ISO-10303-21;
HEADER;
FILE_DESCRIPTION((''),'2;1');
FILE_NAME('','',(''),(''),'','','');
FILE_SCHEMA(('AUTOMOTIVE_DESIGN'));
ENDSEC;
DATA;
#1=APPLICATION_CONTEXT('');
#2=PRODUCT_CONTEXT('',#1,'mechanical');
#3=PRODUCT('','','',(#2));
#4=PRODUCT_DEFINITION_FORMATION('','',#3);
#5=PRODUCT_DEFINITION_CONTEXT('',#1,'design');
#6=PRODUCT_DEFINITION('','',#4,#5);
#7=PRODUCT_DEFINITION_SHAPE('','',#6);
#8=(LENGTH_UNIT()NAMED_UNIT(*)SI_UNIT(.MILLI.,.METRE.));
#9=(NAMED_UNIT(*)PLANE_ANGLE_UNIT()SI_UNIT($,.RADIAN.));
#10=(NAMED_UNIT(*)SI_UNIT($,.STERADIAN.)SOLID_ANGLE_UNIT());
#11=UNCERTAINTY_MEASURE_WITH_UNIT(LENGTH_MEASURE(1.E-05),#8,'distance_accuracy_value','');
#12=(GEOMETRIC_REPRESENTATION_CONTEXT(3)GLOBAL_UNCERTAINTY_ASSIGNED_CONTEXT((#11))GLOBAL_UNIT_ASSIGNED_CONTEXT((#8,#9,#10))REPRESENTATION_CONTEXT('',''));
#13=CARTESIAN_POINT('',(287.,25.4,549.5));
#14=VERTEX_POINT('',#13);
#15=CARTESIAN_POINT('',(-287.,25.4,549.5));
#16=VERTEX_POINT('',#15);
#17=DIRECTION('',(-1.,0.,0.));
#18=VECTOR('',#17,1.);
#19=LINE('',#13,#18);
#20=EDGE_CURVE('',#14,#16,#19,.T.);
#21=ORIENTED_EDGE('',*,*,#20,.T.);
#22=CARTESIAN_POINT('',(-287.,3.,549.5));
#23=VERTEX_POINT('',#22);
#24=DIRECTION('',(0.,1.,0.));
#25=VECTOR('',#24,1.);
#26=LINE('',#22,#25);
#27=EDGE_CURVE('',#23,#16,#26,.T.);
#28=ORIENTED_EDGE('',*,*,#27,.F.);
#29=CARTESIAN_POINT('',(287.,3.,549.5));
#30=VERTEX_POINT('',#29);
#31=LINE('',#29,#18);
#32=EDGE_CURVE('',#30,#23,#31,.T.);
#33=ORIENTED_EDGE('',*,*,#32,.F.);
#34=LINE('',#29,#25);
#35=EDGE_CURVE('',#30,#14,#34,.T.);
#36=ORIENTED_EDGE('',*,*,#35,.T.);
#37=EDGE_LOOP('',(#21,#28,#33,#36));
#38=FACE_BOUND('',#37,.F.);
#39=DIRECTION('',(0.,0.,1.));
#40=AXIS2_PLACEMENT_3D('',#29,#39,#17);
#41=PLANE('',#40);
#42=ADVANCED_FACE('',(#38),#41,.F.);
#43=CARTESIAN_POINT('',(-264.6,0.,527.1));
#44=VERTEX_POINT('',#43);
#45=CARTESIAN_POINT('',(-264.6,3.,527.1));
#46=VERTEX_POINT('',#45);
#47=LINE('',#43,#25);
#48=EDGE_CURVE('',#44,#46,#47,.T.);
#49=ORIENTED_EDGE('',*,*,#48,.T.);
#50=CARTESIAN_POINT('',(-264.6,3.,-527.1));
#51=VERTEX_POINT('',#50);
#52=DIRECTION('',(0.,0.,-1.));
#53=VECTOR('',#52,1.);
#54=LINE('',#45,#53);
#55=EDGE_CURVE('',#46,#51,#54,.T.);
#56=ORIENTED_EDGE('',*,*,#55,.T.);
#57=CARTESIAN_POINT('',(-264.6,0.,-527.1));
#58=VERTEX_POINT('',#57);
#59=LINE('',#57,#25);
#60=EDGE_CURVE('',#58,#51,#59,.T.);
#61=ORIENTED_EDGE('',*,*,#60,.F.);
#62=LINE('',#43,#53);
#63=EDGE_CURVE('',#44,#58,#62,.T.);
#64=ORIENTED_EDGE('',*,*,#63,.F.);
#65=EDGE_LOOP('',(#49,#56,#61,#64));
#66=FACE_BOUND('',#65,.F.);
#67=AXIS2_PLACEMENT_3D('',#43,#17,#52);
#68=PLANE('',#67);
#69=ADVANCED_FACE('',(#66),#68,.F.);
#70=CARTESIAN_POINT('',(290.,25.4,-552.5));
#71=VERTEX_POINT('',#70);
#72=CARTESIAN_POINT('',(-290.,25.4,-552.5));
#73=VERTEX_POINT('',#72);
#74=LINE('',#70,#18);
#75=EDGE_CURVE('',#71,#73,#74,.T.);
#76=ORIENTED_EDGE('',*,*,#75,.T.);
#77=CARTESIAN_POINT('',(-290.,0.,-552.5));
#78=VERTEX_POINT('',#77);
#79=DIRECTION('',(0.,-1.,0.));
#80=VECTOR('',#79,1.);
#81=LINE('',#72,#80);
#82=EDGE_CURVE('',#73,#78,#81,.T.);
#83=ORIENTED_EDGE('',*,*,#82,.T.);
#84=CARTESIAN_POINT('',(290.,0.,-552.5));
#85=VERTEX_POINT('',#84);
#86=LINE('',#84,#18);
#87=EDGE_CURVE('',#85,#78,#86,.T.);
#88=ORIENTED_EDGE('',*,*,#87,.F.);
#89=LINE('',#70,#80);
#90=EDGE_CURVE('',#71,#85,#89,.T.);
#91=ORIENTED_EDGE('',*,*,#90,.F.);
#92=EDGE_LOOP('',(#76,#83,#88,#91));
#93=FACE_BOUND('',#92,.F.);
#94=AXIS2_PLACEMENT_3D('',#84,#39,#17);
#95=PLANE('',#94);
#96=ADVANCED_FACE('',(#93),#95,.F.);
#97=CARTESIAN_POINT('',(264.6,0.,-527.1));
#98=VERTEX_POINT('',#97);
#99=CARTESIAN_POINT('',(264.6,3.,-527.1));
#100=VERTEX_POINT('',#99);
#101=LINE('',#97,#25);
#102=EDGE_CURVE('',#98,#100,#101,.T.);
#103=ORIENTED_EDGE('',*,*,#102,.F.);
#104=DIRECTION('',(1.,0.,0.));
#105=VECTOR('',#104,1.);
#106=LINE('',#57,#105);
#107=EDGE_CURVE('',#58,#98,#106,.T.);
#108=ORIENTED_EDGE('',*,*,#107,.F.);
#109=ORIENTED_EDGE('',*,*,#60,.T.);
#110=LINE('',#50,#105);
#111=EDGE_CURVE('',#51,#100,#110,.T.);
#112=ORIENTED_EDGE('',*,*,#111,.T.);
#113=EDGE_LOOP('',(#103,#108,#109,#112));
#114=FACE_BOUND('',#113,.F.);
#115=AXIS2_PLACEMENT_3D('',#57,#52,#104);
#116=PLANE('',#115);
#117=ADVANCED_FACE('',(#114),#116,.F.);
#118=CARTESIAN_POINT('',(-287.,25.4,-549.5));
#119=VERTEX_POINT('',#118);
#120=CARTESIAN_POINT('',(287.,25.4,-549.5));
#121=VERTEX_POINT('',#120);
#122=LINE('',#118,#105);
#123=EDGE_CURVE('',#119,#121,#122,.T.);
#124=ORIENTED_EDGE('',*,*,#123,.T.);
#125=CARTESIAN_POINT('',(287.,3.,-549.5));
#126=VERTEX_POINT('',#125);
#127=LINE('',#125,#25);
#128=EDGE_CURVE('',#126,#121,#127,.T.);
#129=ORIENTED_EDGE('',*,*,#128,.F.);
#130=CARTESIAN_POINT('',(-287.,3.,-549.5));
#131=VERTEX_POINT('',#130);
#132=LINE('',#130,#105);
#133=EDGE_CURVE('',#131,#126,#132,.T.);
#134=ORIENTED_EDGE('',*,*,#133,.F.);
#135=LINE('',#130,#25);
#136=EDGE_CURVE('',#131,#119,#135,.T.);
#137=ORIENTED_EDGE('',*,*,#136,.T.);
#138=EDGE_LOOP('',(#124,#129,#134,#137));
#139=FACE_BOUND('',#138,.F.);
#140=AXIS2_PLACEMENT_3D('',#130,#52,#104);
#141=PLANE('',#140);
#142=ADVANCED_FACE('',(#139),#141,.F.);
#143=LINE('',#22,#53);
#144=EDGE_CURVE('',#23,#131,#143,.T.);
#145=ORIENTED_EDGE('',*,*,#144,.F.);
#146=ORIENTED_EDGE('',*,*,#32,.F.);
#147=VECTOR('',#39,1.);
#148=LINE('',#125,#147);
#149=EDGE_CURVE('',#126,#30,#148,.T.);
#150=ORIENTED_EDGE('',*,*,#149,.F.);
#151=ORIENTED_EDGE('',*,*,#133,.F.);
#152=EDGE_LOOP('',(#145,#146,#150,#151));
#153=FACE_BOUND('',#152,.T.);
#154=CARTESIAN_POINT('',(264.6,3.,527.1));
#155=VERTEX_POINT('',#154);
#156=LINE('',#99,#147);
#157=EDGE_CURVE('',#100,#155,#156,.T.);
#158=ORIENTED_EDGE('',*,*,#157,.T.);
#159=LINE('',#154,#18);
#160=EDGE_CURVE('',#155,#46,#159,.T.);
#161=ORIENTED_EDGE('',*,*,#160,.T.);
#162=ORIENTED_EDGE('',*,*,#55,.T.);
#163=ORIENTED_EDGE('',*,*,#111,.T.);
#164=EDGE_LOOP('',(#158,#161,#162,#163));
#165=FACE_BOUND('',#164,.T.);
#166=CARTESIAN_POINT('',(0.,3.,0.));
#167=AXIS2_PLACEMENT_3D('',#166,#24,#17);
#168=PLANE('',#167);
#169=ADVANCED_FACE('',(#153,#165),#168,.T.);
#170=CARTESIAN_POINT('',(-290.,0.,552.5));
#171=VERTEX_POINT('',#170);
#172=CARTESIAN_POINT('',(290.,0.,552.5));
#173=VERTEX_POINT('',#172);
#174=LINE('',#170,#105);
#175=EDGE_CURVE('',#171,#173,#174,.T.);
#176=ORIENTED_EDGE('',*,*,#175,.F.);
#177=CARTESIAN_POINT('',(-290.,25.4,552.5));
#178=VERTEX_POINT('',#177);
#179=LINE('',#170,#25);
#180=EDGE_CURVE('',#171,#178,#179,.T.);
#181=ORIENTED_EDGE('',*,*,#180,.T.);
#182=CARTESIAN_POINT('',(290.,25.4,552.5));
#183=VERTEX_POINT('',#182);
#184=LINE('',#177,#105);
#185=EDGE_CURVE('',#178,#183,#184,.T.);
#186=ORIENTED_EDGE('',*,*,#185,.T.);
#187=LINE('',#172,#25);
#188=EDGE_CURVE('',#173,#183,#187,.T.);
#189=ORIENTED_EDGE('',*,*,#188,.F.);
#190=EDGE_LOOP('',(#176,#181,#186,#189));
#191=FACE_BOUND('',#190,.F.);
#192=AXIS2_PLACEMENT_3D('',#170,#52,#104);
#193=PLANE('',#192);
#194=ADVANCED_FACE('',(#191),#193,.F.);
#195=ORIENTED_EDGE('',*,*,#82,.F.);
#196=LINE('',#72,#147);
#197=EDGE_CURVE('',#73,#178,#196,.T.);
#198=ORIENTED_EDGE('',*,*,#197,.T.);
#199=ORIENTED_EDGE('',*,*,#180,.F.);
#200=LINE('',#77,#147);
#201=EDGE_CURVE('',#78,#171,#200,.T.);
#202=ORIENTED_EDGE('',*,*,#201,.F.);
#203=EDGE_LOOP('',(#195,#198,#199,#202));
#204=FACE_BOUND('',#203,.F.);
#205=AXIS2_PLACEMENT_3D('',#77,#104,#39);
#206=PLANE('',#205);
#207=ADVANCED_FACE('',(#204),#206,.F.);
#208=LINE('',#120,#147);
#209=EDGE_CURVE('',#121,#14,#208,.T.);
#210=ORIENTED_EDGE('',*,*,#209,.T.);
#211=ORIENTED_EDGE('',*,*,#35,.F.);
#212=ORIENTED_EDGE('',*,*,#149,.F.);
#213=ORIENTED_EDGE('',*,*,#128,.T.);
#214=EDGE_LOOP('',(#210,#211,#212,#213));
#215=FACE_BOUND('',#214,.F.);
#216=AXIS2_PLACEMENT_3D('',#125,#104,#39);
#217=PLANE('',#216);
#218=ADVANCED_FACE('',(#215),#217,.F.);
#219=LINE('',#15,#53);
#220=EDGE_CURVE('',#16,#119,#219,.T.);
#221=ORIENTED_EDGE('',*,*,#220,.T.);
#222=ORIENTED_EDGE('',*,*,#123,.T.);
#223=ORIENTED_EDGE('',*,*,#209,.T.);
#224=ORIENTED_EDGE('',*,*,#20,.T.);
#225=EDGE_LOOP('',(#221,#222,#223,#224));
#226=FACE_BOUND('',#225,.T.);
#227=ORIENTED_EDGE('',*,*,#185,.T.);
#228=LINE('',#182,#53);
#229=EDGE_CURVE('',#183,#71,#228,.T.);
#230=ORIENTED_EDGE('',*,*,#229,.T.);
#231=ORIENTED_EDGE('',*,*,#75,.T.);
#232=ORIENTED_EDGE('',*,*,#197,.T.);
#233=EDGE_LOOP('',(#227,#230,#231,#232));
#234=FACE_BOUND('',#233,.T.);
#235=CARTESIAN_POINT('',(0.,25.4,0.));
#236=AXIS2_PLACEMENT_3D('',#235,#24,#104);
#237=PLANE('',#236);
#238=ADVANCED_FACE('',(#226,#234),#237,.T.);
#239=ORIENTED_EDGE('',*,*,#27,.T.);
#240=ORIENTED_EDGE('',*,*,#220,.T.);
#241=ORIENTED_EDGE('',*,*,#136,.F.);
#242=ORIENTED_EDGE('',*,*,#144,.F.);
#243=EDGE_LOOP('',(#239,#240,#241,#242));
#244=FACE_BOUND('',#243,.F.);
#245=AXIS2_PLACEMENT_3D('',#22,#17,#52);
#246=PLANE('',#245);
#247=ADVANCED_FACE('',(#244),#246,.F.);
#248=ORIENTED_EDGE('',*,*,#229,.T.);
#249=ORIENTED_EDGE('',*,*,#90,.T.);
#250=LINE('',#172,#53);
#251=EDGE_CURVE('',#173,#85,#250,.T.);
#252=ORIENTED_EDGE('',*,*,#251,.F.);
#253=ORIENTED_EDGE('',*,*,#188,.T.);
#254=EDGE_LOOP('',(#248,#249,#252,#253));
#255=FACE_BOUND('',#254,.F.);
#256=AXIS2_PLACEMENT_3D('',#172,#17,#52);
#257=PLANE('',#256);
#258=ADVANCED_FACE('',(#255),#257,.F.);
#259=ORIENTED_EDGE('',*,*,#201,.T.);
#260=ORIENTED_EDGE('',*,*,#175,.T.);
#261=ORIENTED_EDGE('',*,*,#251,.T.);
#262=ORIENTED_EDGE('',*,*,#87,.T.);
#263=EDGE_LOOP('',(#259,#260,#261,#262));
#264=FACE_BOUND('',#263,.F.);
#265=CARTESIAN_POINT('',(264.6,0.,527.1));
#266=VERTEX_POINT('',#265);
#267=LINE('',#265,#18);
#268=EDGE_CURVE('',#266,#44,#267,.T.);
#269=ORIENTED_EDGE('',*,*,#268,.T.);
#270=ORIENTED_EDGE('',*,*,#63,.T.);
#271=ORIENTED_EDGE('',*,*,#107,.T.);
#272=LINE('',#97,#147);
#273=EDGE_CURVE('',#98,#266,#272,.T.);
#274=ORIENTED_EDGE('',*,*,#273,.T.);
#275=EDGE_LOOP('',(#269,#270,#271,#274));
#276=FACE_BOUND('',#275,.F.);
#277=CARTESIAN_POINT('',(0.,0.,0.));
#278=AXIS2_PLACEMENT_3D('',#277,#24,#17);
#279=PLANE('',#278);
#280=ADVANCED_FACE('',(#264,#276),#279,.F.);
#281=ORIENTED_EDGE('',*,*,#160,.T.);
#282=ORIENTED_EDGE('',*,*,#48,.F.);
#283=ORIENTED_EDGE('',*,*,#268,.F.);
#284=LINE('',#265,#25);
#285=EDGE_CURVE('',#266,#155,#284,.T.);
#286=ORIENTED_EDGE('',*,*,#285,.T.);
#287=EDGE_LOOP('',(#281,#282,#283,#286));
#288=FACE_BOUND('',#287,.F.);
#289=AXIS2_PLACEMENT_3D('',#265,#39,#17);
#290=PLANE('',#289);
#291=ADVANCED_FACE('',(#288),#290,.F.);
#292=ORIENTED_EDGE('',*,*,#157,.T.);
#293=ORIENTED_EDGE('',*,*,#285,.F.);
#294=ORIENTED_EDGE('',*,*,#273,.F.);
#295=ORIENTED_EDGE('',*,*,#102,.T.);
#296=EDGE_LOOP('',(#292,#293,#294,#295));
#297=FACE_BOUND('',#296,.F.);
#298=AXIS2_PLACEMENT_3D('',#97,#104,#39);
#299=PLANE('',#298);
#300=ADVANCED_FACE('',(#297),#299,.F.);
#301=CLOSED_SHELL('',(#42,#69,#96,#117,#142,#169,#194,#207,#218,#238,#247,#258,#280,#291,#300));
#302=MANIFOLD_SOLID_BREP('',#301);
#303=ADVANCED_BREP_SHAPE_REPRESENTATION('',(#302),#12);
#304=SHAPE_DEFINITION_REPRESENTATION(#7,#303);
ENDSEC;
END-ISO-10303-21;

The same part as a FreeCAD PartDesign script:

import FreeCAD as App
import Part
import Sketcher
Q = App.Units.Quantity

doc = App.newDocument("Part")
body = doc.addObject("PartDesign::Body", "Body")

sketch1 = body.newObject("Sketcher::SketchObject", "Sketch")
sketch1.AttachmentSupport = (doc.getObject("XZ_Plane"), [""])
sketch1.MapMode = "FlatFace"
sketch1.addGeometry([
    Part.LineSegment(App.Vector(-290, -552.5, 0), App.Vector(-290, 552.5, 0)),
    Part.LineSegment(App.Vector(-290, 552.5, 0), App.Vector(290, 552.5, 0)),
    Part.LineSegment(App.Vector(290, 552.5, 0), App.Vector(290, -552.5, 0)),
    Part.LineSegment(App.Vector(290, -552.5, 0), App.Vector(-290, -552.5, 0)),
    Part.LineSegment(App.Vector(-264.6, 527.1, 0), App.Vector(-264.6, -527.1, 0)),
    Part.LineSegment(App.Vector(-264.6, -527.1, 0), App.Vector(264.6, -527.1, 0)),
    Part.LineSegment(App.Vector(264.6, -527.1, 0), App.Vector(264.6, 527.1, 0)),
    Part.LineSegment(App.Vector(264.6, 527.1, 0), App.Vector(-264.6, 527.1, 0)),
], False)
sketch1.addConstraint([
    Sketcher.Constraint("Coincident", 0, 2, 1, 1),
    Sketcher.Constraint("Coincident", 1, 2, 2, 1),
    Sketcher.Constraint("Coincident", 2, 2, 3, 1),
    Sketcher.Constraint("Coincident", 3, 2, 0, 1),
    Sketcher.Constraint("Coincident", 4, 2, 5, 1),
    Sketcher.Constraint("Coincident", 5, 2, 6, 1),
    Sketcher.Constraint("Coincident", 6, 2, 7, 1),
    Sketcher.Constraint("Coincident", 7, 2, 4, 1),
    Sketcher.Constraint("Vertical", 0),
    Sketcher.Constraint("Horizontal", 1),
    Sketcher.Constraint("Vertical", 2),
    Sketcher.Constraint("Horizontal", 3),
    Sketcher.Constraint("Vertical", 4),
    Sketcher.Constraint("Horizontal", 5),
    Sketcher.Constraint("Vertical", 6),
    Sketcher.Constraint("Horizontal", 7),
    Sketcher.Constraint("Symmetric", 0, 2, 2, 2, -1, 1),
    Sketcher.Constraint("Symmetric", 4, 2, 6, 2, -1, 1),
    Sketcher.Constraint("DistanceX", 1, 1, 1, 2, Q("580 mm")),
    Sketcher.Constraint("DistanceY", 0, 1, 0, 2, Q("1105 mm")),
    Sketcher.Constraint("DistanceX", 3, 2, 4, 2, Q("25.4 mm")),
    Sketcher.Constraint("DistanceY", 3, 2, 4, 2, Q("25.4 mm")),
])
pad1 = body.newObject("PartDesign::Pad", "Pad")
pad1.Profile = sketch1
pad1.Length = 3
pad1.Reversed = True

sketch2 = body.newObject("Sketcher::SketchObject", "Sketch001")
sketch2.AttachmentSupport = (doc.getObject("XZ_Plane"), [""])
sketch2.MapMode = "FlatFace"
sketch2.AttachmentOffset = App.Placement(App.Vector(0, 0, -3), App.Rotation())
sketch2.addGeometry([
    Part.LineSegment(App.Vector(290, -552.5, 0), App.Vector(-290, -552.5, 0)),
    Part.LineSegment(App.Vector(-290, -552.5, 0), App.Vector(-290, 552.5, 0)),
    Part.LineSegment(App.Vector(-290, 552.5, 0), App.Vector(290, 552.5, 0)),
    Part.LineSegment(App.Vector(290, 552.5, 0), App.Vector(290, -552.5, 0)),
    Part.LineSegment(App.Vector(-287, 549.5, 0), App.Vector(-287, -549.5, 0)),
    Part.LineSegment(App.Vector(-287, -549.5, 0), App.Vector(287, -549.5, 0)),
    Part.LineSegment(App.Vector(287, -549.5, 0), App.Vector(287, 549.5, 0)),
    Part.LineSegment(App.Vector(287, 549.5, 0), App.Vector(-287, 549.5, 0)),
], False)
sketch2.addConstraint([
    Sketcher.Constraint("Coincident", 0, 2, 1, 1),
    Sketcher.Constraint("Coincident", 1, 2, 2, 1),
    Sketcher.Constraint("Coincident", 2, 2, 3, 1),
    Sketcher.Constraint("Coincident", 3, 2, 0, 1),
    Sketcher.Constraint("Coincident", 4, 2, 5, 1),
    Sketcher.Constraint("Coincident", 5, 2, 6, 1),
    Sketcher.Constraint("Coincident", 6, 2, 7, 1),
    Sketcher.Constraint("Coincident", 7, 2, 4, 1),
    Sketcher.Constraint("Horizontal", 0),
    Sketcher.Constraint("Vertical", 1),
    Sketcher.Constraint("Horizontal", 2),
    Sketcher.Constraint("Vertical", 3),
    Sketcher.Constraint("Vertical", 4),
    Sketcher.Constraint("Horizontal", 5),
    Sketcher.Constraint("Vertical", 6),
    Sketcher.Constraint("Horizontal", 7),
    Sketcher.Constraint("Symmetric", 0, 2, 2, 2, -1, 1),
    Sketcher.Constraint("Symmetric", 4, 2, 6, 2, -1, 1),
    Sketcher.Constraint("DistanceX", 0, 2, 4, 2, Q("3 mm")),
    Sketcher.Constraint("DistanceY", 0, 2, 4, 2, Q("3 mm")),
    Sketcher.Constraint("DistanceX", 0, 2, 0, 1, Q("580 mm")),
    Sketcher.Constraint("DistanceY", 1, 1, 1, 2, Q("1105 mm")),
])
pad2 = body.newObject("PartDesign::Pad", "Pad001")
pad2.Profile = sketch2
pad2.Length = 22.4
pad2.Reversed = True

doc.recompute()
